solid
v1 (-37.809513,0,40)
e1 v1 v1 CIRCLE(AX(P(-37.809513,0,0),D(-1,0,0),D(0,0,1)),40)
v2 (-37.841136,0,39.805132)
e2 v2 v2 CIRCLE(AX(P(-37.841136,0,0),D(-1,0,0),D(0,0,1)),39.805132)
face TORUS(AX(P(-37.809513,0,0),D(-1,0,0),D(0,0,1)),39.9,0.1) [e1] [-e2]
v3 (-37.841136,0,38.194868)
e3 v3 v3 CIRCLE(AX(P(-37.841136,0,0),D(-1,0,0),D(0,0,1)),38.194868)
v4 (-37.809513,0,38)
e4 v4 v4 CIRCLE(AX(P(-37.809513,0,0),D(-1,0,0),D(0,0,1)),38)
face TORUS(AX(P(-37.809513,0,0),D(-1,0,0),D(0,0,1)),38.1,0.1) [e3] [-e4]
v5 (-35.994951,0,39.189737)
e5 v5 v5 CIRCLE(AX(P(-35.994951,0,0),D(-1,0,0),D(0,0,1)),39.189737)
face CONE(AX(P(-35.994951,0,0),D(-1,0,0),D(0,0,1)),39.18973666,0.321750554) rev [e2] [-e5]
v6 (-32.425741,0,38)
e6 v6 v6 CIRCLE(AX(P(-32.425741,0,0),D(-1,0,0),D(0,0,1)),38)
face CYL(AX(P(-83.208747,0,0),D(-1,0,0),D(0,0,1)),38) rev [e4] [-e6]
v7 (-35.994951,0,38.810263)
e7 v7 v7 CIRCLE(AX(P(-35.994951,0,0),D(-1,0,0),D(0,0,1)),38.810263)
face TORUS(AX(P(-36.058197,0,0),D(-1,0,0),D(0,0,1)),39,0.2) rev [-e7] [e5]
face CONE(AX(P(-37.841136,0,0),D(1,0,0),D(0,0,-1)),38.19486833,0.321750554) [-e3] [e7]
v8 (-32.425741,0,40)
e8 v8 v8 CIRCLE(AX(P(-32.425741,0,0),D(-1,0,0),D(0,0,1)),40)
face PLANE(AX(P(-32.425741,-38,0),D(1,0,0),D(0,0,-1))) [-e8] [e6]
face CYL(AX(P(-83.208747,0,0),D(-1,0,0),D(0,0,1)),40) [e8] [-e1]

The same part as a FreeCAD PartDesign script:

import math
import FreeCAD as App
import Part
import Sketcher

V = App.Vector

doc = App.newDocument("Part")
body = doc.addObject("PartDesign::Body", "Body")

# Sketch on XY plane
sketch1 = body.newObject("Sketcher::SketchObject", "Sketch")
sketch1.AttachmentSupport = (doc.getObject("XY_Plane"), [""])
sketch1.MapMode = "FlatFace"
sketch1.addGeometry(Part.LineSegment(V(-37.81, -40, 0), V(-32.43, -40, 0)), False)
sketch1.addGeometry(Part.LineSegment(V(-32.43, -40, 0), V(-32.43, -38, 0)), False)
sketch1.addGeometry(Part.LineSegment(V(-32.43, -38, 0), V(-37.81, -38, 0)), False)
sketch1.addGeometry(Part.ArcOfCircle(Part.Circle(V(-37.81, -38.1, 0), V(0, 0, 1), 0.1), math.radians(90), math.radians(252)), False)
sketch1.addGeometry(Part.LineSegment(V(-37.84, -38.19, 0), V(-35.99, -38.81, 0)), False)
sketch1.addGeometry(Part.ArcOfCircle(Part.Circle(V(-36.06, -39, 0), V(0, 0, 1), 0.2), math.radians(-72), math.radians(72)), False)
sketch1.addGeometry(Part.LineSegment(V(-35.99, -39.19, 0), V(-37.84, -39.81, 0)), False)
sketch1.addGeometry(Part.ArcOfCircle(Part.Circle(V(-37.81, -39.9, 0), V(0, 0, 1), 0.1), math.radians(108), math.radians(270)), False)
sketch1.addConstraint(Sketcher.Constraint("Coincident", 0, 2, 1, 1))
sketch1.addConstraint(Sketcher.Constraint("Coincident", 1, 2, 2, 1))
sketch1.addConstraint(Sketcher.Constraint("Tangent", 2, 2, 3, 1))
sketch1.addConstraint(Sketcher.Constraint("Tangent", 3, 2, 4, 1))
sketch1.addConstraint(Sketcher.Constraint("Tangent", 4, 2, 5, 2))
sketch1.addConstraint(Sketcher.Constraint("Tangent", 5, 1, 6, 1))
sketch1.addConstraint(Sketcher.Constraint("Tangent", 6, 2, 7, 1))
sketch1.addConstraint(Sketcher.Constraint("Tangent", 7, 2, 0, 1))
sketch1.addConstraint(Sketcher.Constraint("Horizontal", 0))
sketch1.addConstraint(Sketcher.Constraint("Vertical", 1))
sketch1.addConstraint(Sketcher.Constraint("Horizontal", 2))
sketch1.addConstraint(Sketcher.Constraint("Equal", 3, 7))
sketch1.addConstraint(Sketcher.Constraint("Vertical", 3, 3, 7, 3))
sketch1.addConstraint(Sketcher.Constraint("Vertical", 4, 2, 5, 1))
sketch1.addConstraint(Sketcher.Constraint("Radius", 3, 0.1))
sketch1.addConstraint(Sketcher.Constraint("Radius", 5, 0.2))
sketch1.addConstraint(Sketcher.Constraint("DistanceY", 1, 1, 1, 2, 2.0))
sketch1.addConstraint(Sketcher.Constraint("DistanceY", 5, 3, -1, 1, 39.0))
sketch1.addConstraint(Sketcher.Constraint("Distance", 4, 1.94605))
sketch1.addConstraint(Sketcher.Constraint("DistanceX", 0, 1, 0, 2, 5.383772))
sketch1.addConstraint(Sketcher.Constraint("DistanceX", 0, 2, -1, 1, 32.425741))
revolution = body.newObject("PartDesign::Revolution", "Revolution")
revolution.Profile = sketch1
revolution.ReferenceAxis = (sketch1, ["H_Axis"])
revolution.Angle = 360

doc.recompute()
